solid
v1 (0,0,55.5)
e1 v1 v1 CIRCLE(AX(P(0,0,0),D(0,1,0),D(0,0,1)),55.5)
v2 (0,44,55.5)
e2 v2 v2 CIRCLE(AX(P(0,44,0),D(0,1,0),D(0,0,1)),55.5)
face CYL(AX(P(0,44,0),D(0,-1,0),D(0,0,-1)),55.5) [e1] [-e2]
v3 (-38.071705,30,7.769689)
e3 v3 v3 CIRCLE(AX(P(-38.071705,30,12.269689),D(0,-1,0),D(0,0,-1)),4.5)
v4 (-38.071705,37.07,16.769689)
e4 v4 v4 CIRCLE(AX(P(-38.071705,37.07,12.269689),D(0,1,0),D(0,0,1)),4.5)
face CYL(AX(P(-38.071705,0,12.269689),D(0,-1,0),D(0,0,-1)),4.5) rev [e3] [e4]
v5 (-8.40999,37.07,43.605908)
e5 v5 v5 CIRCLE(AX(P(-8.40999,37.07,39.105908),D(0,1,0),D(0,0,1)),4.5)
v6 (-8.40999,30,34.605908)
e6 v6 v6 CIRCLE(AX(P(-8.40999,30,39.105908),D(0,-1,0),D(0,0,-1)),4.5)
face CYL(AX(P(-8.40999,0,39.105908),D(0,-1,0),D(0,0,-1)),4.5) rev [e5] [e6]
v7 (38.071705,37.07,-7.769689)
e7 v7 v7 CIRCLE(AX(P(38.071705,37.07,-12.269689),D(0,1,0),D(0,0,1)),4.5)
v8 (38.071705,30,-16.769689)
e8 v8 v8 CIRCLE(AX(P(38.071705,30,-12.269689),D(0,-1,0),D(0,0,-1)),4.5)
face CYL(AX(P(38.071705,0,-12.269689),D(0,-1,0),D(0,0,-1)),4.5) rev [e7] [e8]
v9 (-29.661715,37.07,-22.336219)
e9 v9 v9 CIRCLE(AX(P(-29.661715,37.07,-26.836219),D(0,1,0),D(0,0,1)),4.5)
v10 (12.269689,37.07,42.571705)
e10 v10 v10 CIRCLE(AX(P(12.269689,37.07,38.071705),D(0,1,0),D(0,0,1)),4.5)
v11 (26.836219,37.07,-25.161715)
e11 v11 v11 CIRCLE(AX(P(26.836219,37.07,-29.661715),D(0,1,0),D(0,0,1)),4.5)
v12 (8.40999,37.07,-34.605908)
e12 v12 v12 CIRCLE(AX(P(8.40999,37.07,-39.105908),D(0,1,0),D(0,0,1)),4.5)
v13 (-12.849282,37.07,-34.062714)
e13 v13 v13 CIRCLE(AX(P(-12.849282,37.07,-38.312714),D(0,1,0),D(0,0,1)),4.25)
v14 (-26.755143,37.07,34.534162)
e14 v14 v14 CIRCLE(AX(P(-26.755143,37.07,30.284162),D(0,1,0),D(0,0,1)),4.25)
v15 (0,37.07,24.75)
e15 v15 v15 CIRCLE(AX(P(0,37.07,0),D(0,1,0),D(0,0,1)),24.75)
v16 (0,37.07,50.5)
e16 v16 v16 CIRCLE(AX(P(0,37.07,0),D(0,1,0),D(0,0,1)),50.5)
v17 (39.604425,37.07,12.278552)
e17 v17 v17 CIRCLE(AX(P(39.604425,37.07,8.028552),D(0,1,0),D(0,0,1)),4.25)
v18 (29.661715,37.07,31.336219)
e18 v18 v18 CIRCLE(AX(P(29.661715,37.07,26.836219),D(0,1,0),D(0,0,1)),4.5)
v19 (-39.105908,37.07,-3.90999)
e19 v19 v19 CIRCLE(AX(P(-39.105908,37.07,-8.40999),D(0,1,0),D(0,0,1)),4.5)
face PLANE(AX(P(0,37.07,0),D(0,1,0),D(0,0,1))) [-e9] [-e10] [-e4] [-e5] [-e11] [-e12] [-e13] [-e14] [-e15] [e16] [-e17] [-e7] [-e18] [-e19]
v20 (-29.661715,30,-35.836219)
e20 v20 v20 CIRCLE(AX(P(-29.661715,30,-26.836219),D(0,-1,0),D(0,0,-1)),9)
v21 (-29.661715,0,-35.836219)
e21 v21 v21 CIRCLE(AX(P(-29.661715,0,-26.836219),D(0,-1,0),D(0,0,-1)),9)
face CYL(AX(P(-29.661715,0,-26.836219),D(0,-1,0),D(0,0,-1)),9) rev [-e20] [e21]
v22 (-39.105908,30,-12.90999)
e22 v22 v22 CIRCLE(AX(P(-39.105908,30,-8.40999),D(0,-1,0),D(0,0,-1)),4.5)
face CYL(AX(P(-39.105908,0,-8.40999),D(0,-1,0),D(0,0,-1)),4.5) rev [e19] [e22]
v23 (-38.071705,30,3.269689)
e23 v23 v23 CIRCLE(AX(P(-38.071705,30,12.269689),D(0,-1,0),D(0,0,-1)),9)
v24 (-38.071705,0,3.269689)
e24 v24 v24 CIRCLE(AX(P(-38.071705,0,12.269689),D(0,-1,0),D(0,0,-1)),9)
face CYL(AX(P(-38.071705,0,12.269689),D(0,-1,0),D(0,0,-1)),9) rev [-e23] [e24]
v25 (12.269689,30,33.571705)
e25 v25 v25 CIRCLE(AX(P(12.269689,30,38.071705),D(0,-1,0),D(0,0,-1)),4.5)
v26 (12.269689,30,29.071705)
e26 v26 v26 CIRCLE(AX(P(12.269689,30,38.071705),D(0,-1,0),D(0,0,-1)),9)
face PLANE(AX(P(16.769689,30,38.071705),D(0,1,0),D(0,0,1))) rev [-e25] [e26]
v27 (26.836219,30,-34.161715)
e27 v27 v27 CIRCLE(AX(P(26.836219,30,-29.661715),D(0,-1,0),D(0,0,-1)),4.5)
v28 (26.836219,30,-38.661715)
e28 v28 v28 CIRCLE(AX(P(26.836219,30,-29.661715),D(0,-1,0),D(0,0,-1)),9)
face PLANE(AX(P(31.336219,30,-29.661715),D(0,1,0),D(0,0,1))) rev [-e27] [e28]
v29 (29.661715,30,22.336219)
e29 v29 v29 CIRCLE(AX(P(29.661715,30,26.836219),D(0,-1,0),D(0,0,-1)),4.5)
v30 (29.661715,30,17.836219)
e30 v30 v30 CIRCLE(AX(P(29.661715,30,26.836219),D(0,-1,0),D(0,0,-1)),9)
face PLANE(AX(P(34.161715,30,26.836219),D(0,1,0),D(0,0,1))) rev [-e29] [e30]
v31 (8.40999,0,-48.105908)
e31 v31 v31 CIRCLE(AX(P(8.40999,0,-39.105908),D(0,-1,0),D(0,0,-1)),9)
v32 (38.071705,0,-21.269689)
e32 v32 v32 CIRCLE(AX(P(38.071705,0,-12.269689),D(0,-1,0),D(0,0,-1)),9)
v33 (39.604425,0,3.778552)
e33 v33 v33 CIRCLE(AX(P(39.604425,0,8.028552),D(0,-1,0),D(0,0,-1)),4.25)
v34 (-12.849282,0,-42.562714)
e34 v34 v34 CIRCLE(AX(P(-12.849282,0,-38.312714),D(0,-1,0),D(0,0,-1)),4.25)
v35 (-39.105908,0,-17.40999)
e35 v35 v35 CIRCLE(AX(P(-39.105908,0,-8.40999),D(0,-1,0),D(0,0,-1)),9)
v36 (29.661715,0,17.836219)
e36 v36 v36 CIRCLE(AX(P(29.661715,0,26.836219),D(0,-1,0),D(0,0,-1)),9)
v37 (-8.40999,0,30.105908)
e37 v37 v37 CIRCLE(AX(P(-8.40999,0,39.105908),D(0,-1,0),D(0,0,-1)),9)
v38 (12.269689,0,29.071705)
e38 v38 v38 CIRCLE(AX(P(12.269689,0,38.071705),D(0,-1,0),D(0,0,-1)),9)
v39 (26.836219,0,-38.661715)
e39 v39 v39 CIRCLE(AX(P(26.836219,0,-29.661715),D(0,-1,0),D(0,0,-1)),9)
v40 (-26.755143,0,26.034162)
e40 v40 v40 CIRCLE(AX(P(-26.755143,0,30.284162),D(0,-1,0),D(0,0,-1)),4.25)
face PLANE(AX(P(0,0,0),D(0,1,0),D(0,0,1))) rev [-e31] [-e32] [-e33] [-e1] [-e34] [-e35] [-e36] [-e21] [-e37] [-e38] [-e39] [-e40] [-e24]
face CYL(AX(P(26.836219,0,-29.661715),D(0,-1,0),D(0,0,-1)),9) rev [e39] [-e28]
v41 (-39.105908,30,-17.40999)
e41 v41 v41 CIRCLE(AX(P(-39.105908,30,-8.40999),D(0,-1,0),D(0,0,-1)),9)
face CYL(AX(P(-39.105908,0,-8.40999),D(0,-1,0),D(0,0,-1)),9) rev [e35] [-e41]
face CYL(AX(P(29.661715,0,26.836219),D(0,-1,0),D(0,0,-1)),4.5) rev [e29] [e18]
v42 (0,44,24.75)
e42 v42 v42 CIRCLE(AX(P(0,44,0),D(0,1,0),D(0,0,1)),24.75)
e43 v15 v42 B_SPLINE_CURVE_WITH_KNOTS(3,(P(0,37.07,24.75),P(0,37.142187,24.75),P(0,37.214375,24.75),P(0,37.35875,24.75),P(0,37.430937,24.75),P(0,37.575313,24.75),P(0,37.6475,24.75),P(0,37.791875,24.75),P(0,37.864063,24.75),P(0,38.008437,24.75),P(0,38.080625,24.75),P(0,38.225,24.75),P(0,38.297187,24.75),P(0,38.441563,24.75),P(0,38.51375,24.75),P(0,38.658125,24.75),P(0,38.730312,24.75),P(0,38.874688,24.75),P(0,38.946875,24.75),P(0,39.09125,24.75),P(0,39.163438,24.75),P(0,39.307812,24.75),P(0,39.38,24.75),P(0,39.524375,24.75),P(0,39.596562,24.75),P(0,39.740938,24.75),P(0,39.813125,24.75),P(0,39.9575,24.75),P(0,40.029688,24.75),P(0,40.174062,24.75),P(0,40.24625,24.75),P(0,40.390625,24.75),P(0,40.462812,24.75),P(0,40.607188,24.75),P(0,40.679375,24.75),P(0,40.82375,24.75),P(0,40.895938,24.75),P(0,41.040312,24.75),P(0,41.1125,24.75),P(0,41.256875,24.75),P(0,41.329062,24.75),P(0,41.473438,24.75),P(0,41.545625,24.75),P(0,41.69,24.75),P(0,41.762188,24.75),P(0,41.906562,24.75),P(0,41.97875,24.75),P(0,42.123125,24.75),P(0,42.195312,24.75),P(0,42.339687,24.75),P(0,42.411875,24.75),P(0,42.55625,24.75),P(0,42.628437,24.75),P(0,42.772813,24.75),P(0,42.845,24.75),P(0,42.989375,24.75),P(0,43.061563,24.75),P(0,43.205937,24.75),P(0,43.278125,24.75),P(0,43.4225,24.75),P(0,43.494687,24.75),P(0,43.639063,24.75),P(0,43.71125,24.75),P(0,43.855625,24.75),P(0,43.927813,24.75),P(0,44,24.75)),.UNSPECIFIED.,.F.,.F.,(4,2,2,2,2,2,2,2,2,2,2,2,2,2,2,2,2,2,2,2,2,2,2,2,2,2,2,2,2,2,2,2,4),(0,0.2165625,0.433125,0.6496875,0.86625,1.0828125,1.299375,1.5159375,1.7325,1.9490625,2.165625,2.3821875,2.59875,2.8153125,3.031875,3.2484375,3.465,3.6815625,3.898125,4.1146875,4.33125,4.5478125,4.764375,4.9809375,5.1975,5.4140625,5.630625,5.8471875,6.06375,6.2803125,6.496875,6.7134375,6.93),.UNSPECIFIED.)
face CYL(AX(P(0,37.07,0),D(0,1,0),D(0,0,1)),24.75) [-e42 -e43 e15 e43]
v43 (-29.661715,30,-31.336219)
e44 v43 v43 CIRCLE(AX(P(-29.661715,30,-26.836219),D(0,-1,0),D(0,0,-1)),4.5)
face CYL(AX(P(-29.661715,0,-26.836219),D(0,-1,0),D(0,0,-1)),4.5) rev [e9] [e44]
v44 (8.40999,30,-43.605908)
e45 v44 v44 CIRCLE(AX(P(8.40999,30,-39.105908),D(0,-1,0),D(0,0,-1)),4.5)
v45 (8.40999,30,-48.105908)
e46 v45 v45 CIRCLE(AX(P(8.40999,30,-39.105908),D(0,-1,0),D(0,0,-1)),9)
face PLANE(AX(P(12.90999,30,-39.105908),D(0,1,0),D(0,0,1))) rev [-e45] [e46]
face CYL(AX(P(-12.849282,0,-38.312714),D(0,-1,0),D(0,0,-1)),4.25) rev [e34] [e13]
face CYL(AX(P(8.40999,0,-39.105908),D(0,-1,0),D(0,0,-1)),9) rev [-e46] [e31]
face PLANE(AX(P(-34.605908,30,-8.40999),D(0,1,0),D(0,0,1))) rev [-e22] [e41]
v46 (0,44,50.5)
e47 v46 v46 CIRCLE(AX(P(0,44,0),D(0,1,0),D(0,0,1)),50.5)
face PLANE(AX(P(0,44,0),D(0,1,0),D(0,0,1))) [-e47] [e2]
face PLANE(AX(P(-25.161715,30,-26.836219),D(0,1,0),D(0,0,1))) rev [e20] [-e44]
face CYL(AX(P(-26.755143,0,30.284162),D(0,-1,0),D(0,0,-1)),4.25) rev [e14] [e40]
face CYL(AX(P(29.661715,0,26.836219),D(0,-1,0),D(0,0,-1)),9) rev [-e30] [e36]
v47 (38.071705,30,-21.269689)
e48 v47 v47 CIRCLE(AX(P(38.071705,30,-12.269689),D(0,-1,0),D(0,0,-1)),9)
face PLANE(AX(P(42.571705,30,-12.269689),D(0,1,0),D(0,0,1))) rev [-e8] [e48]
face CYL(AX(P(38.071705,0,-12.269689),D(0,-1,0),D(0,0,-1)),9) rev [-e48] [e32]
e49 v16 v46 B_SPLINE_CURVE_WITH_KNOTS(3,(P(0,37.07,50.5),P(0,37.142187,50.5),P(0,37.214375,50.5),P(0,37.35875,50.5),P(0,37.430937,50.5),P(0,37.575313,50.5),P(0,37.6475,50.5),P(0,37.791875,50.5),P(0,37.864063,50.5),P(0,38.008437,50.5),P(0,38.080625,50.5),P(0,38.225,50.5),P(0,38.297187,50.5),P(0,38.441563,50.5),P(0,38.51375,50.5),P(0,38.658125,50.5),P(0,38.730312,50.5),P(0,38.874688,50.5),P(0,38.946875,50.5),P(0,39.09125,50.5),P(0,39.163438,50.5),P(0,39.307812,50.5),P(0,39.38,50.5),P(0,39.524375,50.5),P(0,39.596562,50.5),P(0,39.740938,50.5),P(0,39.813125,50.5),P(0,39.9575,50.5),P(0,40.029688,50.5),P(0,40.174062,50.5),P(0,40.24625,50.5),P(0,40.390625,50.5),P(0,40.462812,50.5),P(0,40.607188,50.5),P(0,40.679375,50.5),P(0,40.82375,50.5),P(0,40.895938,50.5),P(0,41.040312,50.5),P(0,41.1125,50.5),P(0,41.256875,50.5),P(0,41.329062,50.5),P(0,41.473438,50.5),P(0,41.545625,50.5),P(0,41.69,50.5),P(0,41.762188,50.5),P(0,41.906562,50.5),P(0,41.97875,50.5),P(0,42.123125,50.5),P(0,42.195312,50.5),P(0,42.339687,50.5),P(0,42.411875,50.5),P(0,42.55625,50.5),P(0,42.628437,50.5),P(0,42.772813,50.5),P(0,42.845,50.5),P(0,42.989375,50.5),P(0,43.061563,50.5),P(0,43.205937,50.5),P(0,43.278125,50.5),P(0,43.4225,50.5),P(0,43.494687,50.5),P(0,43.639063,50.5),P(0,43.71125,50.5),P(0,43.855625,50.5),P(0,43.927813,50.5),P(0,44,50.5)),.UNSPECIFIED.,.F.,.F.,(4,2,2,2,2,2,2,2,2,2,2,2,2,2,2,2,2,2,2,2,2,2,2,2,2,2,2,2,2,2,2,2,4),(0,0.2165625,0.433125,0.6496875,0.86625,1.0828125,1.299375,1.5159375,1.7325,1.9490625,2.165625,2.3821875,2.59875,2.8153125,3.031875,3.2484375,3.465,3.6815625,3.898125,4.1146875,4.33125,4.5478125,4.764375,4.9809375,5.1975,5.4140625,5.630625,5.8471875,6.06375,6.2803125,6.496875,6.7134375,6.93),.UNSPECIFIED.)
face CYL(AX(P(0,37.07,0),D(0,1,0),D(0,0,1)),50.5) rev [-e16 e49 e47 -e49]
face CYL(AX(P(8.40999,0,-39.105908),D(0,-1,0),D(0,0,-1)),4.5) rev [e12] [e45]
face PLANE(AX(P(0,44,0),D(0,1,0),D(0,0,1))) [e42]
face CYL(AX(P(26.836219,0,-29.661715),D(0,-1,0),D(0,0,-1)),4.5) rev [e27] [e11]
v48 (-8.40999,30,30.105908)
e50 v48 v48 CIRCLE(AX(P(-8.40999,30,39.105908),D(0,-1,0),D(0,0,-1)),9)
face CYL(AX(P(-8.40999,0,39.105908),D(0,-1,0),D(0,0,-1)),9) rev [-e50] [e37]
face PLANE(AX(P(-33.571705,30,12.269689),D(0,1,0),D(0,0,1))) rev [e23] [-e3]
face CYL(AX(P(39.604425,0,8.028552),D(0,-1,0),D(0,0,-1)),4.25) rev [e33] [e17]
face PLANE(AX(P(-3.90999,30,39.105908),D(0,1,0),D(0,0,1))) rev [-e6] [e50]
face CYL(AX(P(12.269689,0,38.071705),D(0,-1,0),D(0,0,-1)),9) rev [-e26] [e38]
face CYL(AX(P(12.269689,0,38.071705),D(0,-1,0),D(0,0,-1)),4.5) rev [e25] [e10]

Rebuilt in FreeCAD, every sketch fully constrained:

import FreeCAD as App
import Part
import Sketcher

V = App.Vector
Q = App.Units.Quantity

doc = App.newDocument("Part")
body = doc.addObject("PartDesign::Body", "Body")

# Sketch on XZ plane
sketch1 = body.newObject("Sketcher::SketchObject", "Sketch")
sketch1.AttachmentSupport = (doc.getObject("XZ_Plane"), [""])
sketch1.MapMode = "FlatFace"
sketch1.addGeometry(Part.Circle(V(0, 0, 0), V(0, 0, 1), 56), False)
sketch1.addConstraint([
    Sketcher.Constraint("Coincident", 0, 3, -1, 1),
    Sketcher.Constraint("Diameter", 0, Q("111 mm")),
])
pad1 = body.newObject("PartDesign::Pad", "Pad")
pad1.Profile = sketch1
pad1.Length = 44
pad1.Reversed = True

# Sketch on XZ plane
sketch2 = body.newObject("Sketcher::SketchObject", "Sketch001")
sketch2.AttachmentSupport = (doc.getObject("XZ_Plane"), [""])
sketch2.MapMode = "FlatFace"
sketch2.AttachmentOffset = App.Placement(V(0, 0, -44), App.Rotation())
sketch2.addGeometry([
    Part.Circle(V(0, 0, 0), V(0, 0, 1), 50),
    Part.Circle(V(0, 0, 0), V(0, 0, 1), 25),
], False)
sketch2.addConstraint([
    Sketcher.Constraint("Coincident", 0, 3, -1, 1),
    Sketcher.Constraint("Coincident", 1, 3, -1, 1),
    Sketcher.Constraint("Diameter", 0, Q("101 mm")),
    Sketcher.Constraint("Diameter", 1, Q("49.5 mm")),
])
pocket1 = body.newObject("PartDesign::Pocket", "Pocket")
pocket1.Profile = sketch2
pocket1.Length = 6.93
pocket1.Reversed = True

# Sketch on XZ plane
sketch3 = body.newObject("Sketcher::SketchObject", "Sketch002")
sketch3.AttachmentSupport = (doc.getObject("XZ_Plane"), [""])
sketch3.MapMode = "FlatFace"
sketch3.addGeometry([
    Part.Circle(V(-8.4, 39.1, 0), V(0, 0, 1), 4.5),  # 0
    Part.Circle(V(12.3, 38.1, 0), V(0, 0, 1), 4.5),  # 1
    Part.Circle(V(29.7, 26.8, 0), V(0, 0, 1), 4.5),  # 2
    Part.Circle(V(38.1, -12.3, 0), V(0, 0, 1), 4.5),  # 3
    Part.Circle(V(26.8, -29.7, 0), V(0, 0, 1), 4.5),  # 4
    Part.Circle(V(8.4, -39.1, 0), V(0, 0, 1), 4.5),  # 5
    Part.Circle(V(-29.7, -26.8, 0), V(0, 0, 1), 4.5),  # 6
    Part.Circle(V(-39.1, -8.4, 0), V(0, 0, 1), 4.5),  # 7
    Part.Circle(V(-38.1, 12.3, 0), V(0, 0, 1), 4.5),  # 8
], False)
sketch3.addConstraint([
    Sketcher.Constraint("Equal", 0, 1),
    Sketcher.Constraint("Equal", 1, 2),
    Sketcher.Constraint("Equal", 2, 3),
    Sketcher.Constraint("Equal", 3, 4),
    Sketcher.Constraint("Equal", 4, 5),
    Sketcher.Constraint("Equal", 5, 6),
    Sketcher.Constraint("Equal", 6, 7),
    Sketcher.Constraint("Equal", 7, 8),
    Sketcher.Constraint("Symmetric", 0, 3, 5, 3, -1, 1),
    Sketcher.Constraint("Symmetric", 2, 3, 6, 3, -1, 1),
    Sketcher.Constraint("Symmetric", 3, 3, 8, 3, -1, 1),
    Sketcher.Constraint("Diameter", 0, Q("9 mm")),
    Sketcher.Constraint("DistanceX", 5, 3, 1, 3, Q("3.859699 mm")),
    Sketcher.Constraint("DistanceY", 7, 3, 0, 3, Q("47.515898 mm")),
    Sketcher.Constraint("DistanceX", 7, 3, 5, 3, Q("47.515898 mm")),
    Sketcher.Constraint("DistanceX", 0, 3, -1, 1, Q("8.40999 mm")),
    Sketcher.Constraint("DistanceY", -1, 1, 0, 3, Q("39.105908 mm")),
    Sketcher.Constraint("DistanceY", -1, 1, 2, 3, Q("26.836219 mm")),
    Sketcher.Constraint("DistanceY", 3, 3, -1, 1, Q("12.269689 mm")),
    Sketcher.Constraint("DistanceX", -1, 1, 4, 3, Q("26.836219 mm")),
    Sketcher.Constraint("DistanceX", 2, 3, 3, 3, Q("8.40999 mm")),
    Sketcher.Constraint("DistanceY", 4, 3, 1, 3, Q("67.73342 mm")),
    Sketcher.Constraint("DistanceX", 6, 3, 3, 3, Q("67.73342 mm")),
    Sketcher.Constraint("DistanceY", -1, 1, 1, 3, Q("38.071705 mm")),
])
doc.recompute()
hole = body.newObject("PartDesign::Hole", "Hole")
hole.Profile = sketch3
hole.ThreadType = "None"
hole.Diameter = 9
hole.DepthType = "ThroughAll"
hole.HoleCutType = "Counterbore"
hole.HoleCutDiameter = 18
hole.HoleCutDepth = 30

# Sketch on XZ plane
sketch4 = body.newObject("Sketcher::SketchObject", "Sketch003")
sketch4.AttachmentSupport = (doc.getObject("XZ_Plane"), [""])
sketch4.MapMode = "FlatFace"
sketch4.addGeometry([
    Part.Circle(V(-26.8, 30.3, 0), V(0, 0, 1), 4.2),
    Part.Circle(V(39.6, 8, 0), V(0, 0, 1), 4.2),
    Part.Circle(V(-12.8, -38.3, 0), V(0, 0, 1), 4.2),
], False)
sketch4.addConstraint([
    Sketcher.Constraint("Equal", 0, 1),
    Sketcher.Constraint("Equal", 1, 2),
    Sketcher.Constraint("Diameter", 0, Q("8.5 mm")),
    Sketcher.Constraint("DistanceY", -1, 1, 0, 3, Q("30.284162 mm")),
    Sketcher.Constraint("DistanceY", 1, 3, 0, 3, Q("22.255609 mm")),
    Sketcher.Constraint("DistanceX", 0, 3, 2, 3, Q("13.905861 mm")),
    Sketcher.Constraint("DistanceX", 0, 3, -1, 1, Q("26.755143 mm")),
    Sketcher.Constraint("DistanceX", -1, 1, 1, 3, Q("39.604425 mm")),
    Sketcher.Constraint("DistanceY", 2, 3, -1, 1, Q("38.312714 mm")),
])
doc.recompute()
hole2 = body.newObject("PartDesign::Hole", "Hole001")
hole2.Profile = sketch4
hole2.ThreadType = "None"
hole2.Diameter = 8.5
hole2.DepthType = "ThroughAll"

doc.recompute()
